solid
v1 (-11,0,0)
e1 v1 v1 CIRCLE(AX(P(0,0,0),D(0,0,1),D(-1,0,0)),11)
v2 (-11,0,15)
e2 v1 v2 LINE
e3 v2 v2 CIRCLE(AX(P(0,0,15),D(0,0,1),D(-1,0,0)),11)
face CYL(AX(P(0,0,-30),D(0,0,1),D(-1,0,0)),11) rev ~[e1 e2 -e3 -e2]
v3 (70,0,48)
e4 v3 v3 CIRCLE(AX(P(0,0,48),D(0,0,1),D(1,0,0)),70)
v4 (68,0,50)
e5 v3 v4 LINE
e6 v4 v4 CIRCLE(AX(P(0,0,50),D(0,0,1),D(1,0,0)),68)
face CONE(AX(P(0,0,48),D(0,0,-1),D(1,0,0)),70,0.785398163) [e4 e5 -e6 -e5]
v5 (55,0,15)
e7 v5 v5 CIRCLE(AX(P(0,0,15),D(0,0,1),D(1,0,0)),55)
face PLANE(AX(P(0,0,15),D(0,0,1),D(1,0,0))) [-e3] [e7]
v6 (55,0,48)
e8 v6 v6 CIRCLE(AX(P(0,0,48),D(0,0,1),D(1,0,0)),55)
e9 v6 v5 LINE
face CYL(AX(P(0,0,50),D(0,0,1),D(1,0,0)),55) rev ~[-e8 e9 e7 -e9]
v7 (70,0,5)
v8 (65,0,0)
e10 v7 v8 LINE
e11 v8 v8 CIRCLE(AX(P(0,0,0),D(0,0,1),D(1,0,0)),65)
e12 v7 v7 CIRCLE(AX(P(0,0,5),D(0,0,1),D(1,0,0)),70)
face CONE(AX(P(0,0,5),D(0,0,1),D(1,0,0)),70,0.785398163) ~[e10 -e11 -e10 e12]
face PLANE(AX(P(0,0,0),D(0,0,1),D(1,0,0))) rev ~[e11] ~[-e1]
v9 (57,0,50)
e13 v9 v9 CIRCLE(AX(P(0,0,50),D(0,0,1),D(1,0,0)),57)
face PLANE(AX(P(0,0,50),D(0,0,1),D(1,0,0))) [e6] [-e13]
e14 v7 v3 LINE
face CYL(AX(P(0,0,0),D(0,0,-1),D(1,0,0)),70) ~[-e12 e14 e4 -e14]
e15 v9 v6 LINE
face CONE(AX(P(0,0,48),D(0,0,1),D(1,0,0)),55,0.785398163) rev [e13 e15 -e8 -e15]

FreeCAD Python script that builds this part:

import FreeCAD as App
import Part
import Sketcher

V = App.Vector


def edges_at(feature, points):
    """Names of the edges that pass closest to the given points."""
    edges = feature.Shape.Edges
    near = lambda p: min(range(len(edges)), key=lambda i: edges[i].distToShape(Part.Vertex(*p))[0])
    return sorted({f"Edge{near(p) + 1}" for p in points})

doc = App.newDocument("Part")
params = doc.addObject("Spreadsheet::Sheet", "Params")
for row, (alias, value) in enumerate([
    ("sketch1_diameter", "140 mm"),
    ("pad1_length", "50 mm"),
    ("sketch2_diameter", "110 mm"),
    ("pocket1_length", "35 mm"),
    ("chamfer_size", "5 mm"),
    ("chamfer2_size", "2 mm"),
    ("sketch3_diameter", "22 mm"),
    ("hole_diameter", "22 mm"),
    ("hole_depth", "30 mm"),
], start=1):
    params.set(f"A{row}", alias)
    params.set(f"B{row}", "=" + value)
    params.setAlias(f"B{row}", alias)

body = doc.addObject("PartDesign::Body", "Body")

# Sketch on XY plane
sketch1 = doc.addObject("Sketcher::SketchObject", "Sketch")
body.addObject(sketch1)
sketch1.AttachmentSupport = (doc.XY_Plane, [""])
sketch1.MapMode = "FlatFace"
sketch1.addGeometry(Part.Circle(V(0, 0, 0), V(0, 0, 1), 70), False)
sketch1.addConstraint(Sketcher.Constraint("Coincident", 0, 3, -1, 1))
sketch1.addConstraint(Sketcher.Constraint("Diameter", 0, 140.0))
sketch1.setExpression("Constraints[1]", "Params.sketch1_diameter")
pad1 = doc.addObject("PartDesign::Pad", "Pad")
body.addObject(pad1)
pad1.Profile = sketch1
pad1.setExpression("Length", "Params.pad1_length")

# Sketch on XY plane
sketch2 = doc.addObject("Sketcher::SketchObject", "Sketch001")
body.addObject(sketch2)
sketch2.AttachmentSupport = (doc.XY_Plane, [""])
sketch2.MapMode = "FlatFace"
sketch2.AttachmentOffset = App.Placement(V(0, 0, 50), App.Rotation())
sketch2.addGeometry(Part.Circle(V(0, 0, 0), V(0, 0, 1), 55), False)
sketch2.addConstraint(Sketcher.Constraint("Coincident", 0, 3, -1, 1))
sketch2.addConstraint(Sketcher.Constraint("Diameter", 0, 110.0))
sketch2.setExpression("Constraints[1]", "Params.sketch2_diameter")
pocket1 = doc.addObject("PartDesign::Pocket", "Pocket")
body.addObject(pocket1)
pocket1.Profile = sketch2
pocket1.setExpression("Length", "Params.pocket1_length")
doc.recompute()

chamfer = doc.addObject("PartDesign::Chamfer", "Chamfer")
body.addObject(chamfer)
chamfer.Base = (pocket1, edges_at(pocket1, [(-70, 0, 0)]))
chamfer.setExpression("Size", "Params.chamfer_size")
doc.recompute()

chamfer2 = doc.addObject("PartDesign::Chamfer", "Chamfer001")
body.addObject(chamfer2)
chamfer2.Base = (chamfer, edges_at(chamfer, [(-70, 0, 50), (-55, 0, 50)]))
chamfer2.setExpression("Size", "Params.chamfer2_size")

# Sketch on XY plane
sketch3 = doc.addObject("Sketcher::SketchObject", "Sketch002")
body.addObject(sketch3)
sketch3.AttachmentSupport = (doc.XY_Plane, [""])
sketch3.MapMode = "FlatFace"
sketch3.addGeometry(Part.Circle(V(0, 0, 0), V(0, 0, 1), 11), False)
sketch3.addConstraint(Sketcher.Constraint("Coincident", 0, 3, -1, 1))
sketch3.addConstraint(Sketcher.Constraint("Diameter", 0, 22.0))
sketch3.setExpression("Constraints[1]", "Params.sketch3_diameter")
doc.recompute()
hole = doc.addObject("PartDesign::Hole", "Hole")
body.addObject(hole)
hole.Profile = sketch3
hole.ThreadType = "None"
hole.setExpression("Diameter", "Params.hole_diameter")
hole.DepthType = "Dimension"
hole.setExpression("Depth", "Params.hole_depth")
hole.DrillPoint = "Angled"
hole.DrillPointAngle = 118
hole.Reversed = True

doc.recompute()
